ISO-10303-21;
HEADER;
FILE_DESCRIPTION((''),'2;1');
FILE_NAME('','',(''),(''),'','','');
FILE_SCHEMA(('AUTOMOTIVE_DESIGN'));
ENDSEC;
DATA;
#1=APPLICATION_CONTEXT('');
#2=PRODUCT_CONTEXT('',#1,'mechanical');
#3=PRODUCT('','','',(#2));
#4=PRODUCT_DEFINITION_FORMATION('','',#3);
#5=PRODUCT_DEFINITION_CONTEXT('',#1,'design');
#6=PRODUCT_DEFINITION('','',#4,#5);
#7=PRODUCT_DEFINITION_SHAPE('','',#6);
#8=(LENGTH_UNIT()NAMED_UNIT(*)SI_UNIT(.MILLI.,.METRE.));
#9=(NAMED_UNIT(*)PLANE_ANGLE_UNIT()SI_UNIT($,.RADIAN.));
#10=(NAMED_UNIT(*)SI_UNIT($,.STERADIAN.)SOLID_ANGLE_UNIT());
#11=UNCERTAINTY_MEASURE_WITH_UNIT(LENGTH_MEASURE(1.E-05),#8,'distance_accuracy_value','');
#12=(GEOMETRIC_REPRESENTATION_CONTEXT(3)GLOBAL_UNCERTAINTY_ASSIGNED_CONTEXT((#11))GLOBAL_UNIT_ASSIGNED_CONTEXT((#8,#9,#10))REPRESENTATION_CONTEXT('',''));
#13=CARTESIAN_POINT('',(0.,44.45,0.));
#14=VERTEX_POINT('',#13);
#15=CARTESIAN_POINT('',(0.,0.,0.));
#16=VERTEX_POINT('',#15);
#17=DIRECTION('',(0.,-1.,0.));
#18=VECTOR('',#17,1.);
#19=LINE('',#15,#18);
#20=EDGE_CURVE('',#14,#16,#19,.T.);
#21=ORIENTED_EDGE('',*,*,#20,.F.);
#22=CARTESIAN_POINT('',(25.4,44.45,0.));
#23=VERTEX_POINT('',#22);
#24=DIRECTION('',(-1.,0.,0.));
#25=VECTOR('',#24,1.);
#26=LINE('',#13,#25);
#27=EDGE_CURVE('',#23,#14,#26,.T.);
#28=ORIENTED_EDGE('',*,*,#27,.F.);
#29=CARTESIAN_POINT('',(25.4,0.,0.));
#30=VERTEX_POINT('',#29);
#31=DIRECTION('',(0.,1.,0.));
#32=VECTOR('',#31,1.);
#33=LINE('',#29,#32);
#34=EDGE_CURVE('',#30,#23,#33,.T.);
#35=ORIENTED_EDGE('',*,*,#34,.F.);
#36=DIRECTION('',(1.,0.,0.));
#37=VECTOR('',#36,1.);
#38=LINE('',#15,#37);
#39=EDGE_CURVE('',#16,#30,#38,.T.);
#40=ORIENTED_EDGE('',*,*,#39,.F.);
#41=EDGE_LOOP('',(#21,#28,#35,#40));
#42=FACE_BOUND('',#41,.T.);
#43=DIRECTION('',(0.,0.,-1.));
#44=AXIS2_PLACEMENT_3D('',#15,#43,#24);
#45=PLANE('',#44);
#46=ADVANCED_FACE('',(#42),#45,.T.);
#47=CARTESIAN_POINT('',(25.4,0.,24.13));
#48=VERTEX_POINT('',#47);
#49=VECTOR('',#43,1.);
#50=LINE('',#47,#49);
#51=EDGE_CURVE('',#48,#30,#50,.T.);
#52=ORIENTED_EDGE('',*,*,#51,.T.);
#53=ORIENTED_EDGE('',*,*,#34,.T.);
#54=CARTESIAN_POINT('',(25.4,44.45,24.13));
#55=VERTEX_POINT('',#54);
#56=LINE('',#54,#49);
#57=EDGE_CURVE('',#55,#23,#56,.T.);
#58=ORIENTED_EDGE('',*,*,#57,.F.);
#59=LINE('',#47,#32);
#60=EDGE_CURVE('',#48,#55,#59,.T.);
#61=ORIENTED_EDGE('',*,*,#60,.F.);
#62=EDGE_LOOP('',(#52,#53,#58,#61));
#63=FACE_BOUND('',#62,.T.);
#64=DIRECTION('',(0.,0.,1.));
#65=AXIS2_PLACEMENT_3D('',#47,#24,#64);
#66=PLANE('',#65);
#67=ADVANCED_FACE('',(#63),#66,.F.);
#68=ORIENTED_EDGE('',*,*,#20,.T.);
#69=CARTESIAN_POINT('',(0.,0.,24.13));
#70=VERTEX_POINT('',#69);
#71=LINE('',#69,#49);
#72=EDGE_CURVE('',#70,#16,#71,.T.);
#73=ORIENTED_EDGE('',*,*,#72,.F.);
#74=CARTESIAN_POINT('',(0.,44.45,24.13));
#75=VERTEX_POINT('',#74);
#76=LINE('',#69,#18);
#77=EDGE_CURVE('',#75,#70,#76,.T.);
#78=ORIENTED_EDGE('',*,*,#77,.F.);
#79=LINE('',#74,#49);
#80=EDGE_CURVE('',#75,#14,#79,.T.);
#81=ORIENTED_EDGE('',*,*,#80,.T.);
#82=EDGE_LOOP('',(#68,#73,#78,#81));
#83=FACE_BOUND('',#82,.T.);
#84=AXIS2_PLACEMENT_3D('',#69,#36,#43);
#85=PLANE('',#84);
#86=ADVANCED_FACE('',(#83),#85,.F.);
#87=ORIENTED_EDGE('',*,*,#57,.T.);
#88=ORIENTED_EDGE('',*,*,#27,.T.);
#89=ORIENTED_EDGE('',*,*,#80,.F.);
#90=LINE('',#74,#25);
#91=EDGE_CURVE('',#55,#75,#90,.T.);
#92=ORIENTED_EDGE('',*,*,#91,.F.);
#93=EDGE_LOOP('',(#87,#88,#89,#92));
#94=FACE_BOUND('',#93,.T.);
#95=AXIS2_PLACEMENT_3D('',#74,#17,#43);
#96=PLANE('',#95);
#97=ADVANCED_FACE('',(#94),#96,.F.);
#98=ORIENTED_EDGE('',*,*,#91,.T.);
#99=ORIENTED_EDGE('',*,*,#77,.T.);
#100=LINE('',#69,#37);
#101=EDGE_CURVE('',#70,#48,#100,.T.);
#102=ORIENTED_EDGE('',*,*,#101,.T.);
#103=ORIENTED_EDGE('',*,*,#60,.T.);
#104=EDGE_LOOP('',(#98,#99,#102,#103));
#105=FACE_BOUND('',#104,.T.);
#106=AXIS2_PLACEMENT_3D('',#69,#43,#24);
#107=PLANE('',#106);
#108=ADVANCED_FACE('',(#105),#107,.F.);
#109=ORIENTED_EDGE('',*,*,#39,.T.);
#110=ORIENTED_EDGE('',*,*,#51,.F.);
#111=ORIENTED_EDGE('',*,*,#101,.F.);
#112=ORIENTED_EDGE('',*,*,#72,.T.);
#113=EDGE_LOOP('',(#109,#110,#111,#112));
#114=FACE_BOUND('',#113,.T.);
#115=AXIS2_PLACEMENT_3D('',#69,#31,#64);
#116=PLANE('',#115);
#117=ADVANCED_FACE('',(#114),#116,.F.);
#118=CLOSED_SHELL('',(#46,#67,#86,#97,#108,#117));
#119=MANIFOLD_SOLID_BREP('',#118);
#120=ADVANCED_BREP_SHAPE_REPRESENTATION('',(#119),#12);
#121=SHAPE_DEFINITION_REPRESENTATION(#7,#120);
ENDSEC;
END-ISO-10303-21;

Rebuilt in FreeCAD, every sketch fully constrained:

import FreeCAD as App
import Part
import Sketcher
Q = App.Units.Quantity


def add_polygon(sketch, points):
    """Adds a closed chain of lines whose ends are joined by coincident constraints."""
    first, n = sketch.GeometryCount, len(points)
    for a, b in zip(points, points[1:] + points[:1]):
        sketch.addGeometry(Part.LineSegment(App.Vector(*a, 0), App.Vector(*b, 0)), False)
    for i in range(n):
        sketch.addConstraint(Sketcher.Constraint("Coincident", first + i, 2, first + (i + 1) % n, 1))

doc = App.newDocument("Part")
body = doc.addObject("PartDesign::Body", "Body")

# Sketch on XY plane
sketch1 = doc.addObject("Sketcher::SketchObject", "Sketch")
body.addObject(sketch1)
sketch1.AttachmentSupport = (doc.XY_Plane, [""])
sketch1.MapMode = "FlatFace"
add_polygon(sketch1, [(0, 44.45), (0, 0), (25.4, 0), (25.4, 44.45)])  # lines 0-3
sketch1.addConstraint([
    Sketcher.Constraint("Vertical", 0),
    Sketcher.Constraint("Horizontal", 1),
    Sketcher.Constraint("Vertical", 2),
    Sketcher.Constraint("Horizontal", 3),
    Sketcher.Constraint("Coincident", 0, 2, -1, 1),
    Sketcher.Constraint("DistanceX", 1, 1, 1, 2, Q("1 in")),
    Sketcher.Constraint("DistanceY", 0, 2, 0, 1, Q("1.75 in")),
])
pad1 = doc.addObject("PartDesign::Pad", "Pad")
body.addObject(pad1)
pad1.Profile = sketch1
pad1.Length = Q("0.95 in")

doc.recompute()
